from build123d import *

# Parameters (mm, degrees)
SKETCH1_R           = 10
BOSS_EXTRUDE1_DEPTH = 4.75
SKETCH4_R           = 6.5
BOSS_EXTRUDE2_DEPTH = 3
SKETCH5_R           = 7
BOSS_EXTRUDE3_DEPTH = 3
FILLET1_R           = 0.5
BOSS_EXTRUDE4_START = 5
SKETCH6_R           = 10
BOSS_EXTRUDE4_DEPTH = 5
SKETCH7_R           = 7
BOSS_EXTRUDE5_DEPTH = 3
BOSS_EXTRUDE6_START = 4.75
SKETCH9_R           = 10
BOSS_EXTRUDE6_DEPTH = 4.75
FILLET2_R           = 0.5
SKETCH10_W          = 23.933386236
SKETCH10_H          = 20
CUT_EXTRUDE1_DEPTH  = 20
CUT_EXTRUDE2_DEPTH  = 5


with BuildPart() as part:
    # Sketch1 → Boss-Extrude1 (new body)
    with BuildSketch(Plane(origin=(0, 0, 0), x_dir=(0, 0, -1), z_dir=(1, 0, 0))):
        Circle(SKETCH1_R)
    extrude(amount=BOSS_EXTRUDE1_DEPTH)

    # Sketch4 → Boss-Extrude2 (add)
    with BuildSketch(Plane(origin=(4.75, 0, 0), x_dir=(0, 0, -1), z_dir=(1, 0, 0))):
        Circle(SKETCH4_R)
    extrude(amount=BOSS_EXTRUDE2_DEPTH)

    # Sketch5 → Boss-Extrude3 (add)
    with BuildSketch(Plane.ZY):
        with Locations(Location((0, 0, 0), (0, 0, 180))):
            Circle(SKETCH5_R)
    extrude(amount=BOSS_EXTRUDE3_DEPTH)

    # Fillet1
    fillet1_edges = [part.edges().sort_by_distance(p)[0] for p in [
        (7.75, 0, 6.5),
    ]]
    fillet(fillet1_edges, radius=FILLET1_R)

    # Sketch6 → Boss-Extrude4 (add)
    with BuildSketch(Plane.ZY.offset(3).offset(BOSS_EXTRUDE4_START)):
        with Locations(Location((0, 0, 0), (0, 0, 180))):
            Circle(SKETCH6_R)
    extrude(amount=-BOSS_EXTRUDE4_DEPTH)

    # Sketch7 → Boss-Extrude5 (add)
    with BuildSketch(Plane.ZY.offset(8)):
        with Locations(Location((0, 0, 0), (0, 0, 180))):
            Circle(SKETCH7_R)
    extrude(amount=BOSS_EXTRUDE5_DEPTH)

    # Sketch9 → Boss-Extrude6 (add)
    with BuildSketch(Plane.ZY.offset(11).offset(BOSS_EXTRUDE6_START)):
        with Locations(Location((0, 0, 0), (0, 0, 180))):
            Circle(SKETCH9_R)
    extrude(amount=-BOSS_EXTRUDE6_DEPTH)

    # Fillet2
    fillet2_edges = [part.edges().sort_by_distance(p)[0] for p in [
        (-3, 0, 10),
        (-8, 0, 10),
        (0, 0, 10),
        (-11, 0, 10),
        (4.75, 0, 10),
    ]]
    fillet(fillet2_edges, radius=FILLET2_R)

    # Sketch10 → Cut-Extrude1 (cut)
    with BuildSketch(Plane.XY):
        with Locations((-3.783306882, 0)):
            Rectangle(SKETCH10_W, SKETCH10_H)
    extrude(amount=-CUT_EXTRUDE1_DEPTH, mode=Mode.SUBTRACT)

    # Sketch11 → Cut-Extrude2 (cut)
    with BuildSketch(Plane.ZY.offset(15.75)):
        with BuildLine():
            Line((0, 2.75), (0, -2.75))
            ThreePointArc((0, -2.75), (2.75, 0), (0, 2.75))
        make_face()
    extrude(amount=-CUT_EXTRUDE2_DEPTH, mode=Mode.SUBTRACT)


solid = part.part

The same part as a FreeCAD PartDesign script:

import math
import FreeCAD as App
import Part
import Sketcher

V = App.Vector
Q = App.Units.Quantity


def edges_at(feature, points):
    """Names of the edges that pass closest to the given points."""
    edges = feature.Shape.Edges
    near = lambda p: min(range(len(edges)), key=lambda i: edges[i].distToShape(Part.Vertex(*p))[0])
    return sorted({f"Edge{near(p) + 1}" for p in points})


def add_polygon(sketch, points):
    """Adds a closed chain of lines whose ends are joined by coincident constraints."""
    first, n = sketch.GeometryCount, len(points)
    for a, b in zip(points, points[1:] + points[:1]):
        sketch.addGeometry(Part.LineSegment(App.Vector(*a, 0), App.Vector(*b, 0)), False)
    for i in range(n):
        sketch.addConstraint(Sketcher.Constraint("Coincident", first + i, 2, first + (i + 1) % n, 1))

doc = App.newDocument("Part")
params = doc.addObject("Spreadsheet::Sheet", "Params")
for row, (alias, value) in enumerate([
    ("sketch1_diameter", "20 mm"),
    ("pad1_length", "4.75 mm"),
    ("sketch2_diameter", "13 mm"),
    ("pad2_length", "3 mm"),
    ("sketch3_diameter", "14 mm"),
    ("pad3_length", "3 mm"),
    ("fillet_radius", "0.5 mm"),
    ("sketch4_diameter", "20 mm"),
    ("pad4_length", "5 mm"),
    ("sketch5_diameter", "14 mm"),
    ("pad5_length", "3 mm"),
    ("sketch6_diameter", "20 mm"),
    ("pad6_length", "4.75 mm"),
    ("fillet2_radius", "0.5 mm"),
    ("sketch7_height", "20 mm"),
    ("pocket1_length", "20 mm"),
    ("sketch8_radius", "2.75 mm"),
    ("pocket2_length", "5 mm"),
], start=1):
    params.set(f"A{row}", alias)
    params.set(f"B{row}", "=" + value)
    params.setAlias(f"B{row}", alias)

body = doc.addObject("PartDesign::Body", "Body")

# Sketch on YZ plane
sketch1 = body.newObject("Sketcher::SketchObject", "Sketch")
sketch1.AttachmentSupport = (doc.getObject("YZ_Plane"), [""])
sketch1.MapMode = "FlatFace"
sketch1.addGeometry(Part.Circle(V(0, 0, 0), V(0, 0, 1), 10), False)
sketch1.addConstraint(Sketcher.Constraint("Coincident", 0, 3, -1, 1))
sketch1.addConstraint(Sketcher.Constraint("Diameter", 0, Q("20 mm")))
sketch1.setExpression("Constraints[1]", "Params.sketch1_diameter")
pad1 = body.newObject("PartDesign::Pad", "Pad")
pad1.Profile = sketch1
pad1.setExpression("Length", "Params.pad1_length")

# Sketch on YZ plane
sketch2 = body.newObject("Sketcher::SketchObject", "Sketch001")
sketch2.AttachmentSupport = (doc.getObject("YZ_Plane"), [""])
sketch2.MapMode = "FlatFace"
sketch2.AttachmentOffset = App.Placement(V(0, 0, 4.75), App.Rotation())
sketch2.addGeometry(Part.Circle(V(0, 0, 0), V(0, 0, 1), 6), False)
sketch2.addConstraint(Sketcher.Constraint("Coincident", 0, 3, -1, 1))
sketch2.addConstraint(Sketcher.Constraint("Diameter", 0, Q("13 mm")))
sketch2.setExpression("Constraints[1]", "Params.sketch2_diameter")
pad2 = body.newObject("PartDesign::Pad", "Pad001")
pad2.Profile = sketch2
pad2.setExpression("Length", "Params.pad2_length")

# Sketch on YZ plane
sketch3 = body.newObject("Sketcher::SketchObject", "Sketch002")
sketch3.AttachmentSupport = (doc.getObject("YZ_Plane"), [""])
sketch3.MapMode = "FlatFace"
sketch3.addGeometry(Part.Circle(V(0, 0, 0), V(0, 0, 1), 7), False)
sketch3.addConstraint(Sketcher.Constraint("Coincident", 0, 3, -1, 1))
sketch3.addConstraint(Sketcher.Constraint("Diameter", 0, Q("14 mm")))
sketch3.setExpression("Constraints[1]", "Params.sketch3_diameter")
pad3 = body.newObject("PartDesign::Pad", "Pad002")
pad3.Profile = sketch3
pad3.setExpression("Length", "Params.pad3_length")
pad3.Reversed = True
doc.recompute()

fillet = body.newObject("PartDesign::Fillet", "Fillet")
fillet.Base = (pad3, edges_at(pad3, [(7.75, 0, 6.5)]))
fillet.setExpression("Radius", "Params.fillet_radius")

# Sketch on YZ plane
sketch4 = body.newObject("Sketcher::SketchObject", "Sketch003")
sketch4.AttachmentSupport = (doc.getObject("YZ_Plane"), [""])
sketch4.MapMode = "FlatFace"
sketch4.AttachmentOffset = App.Placement(V(0, 0, -8), App.Rotation())
sketch4.addGeometry(Part.Circle(V(0, 0, 0), V(0, 0, 1), 10), False)
sketch4.addConstraint(Sketcher.Constraint("Coincident", 0, 3, -1, 1))
sketch4.addConstraint(Sketcher.Constraint("Diameter", 0, Q("20 mm")))
sketch4.setExpression("Constraints[1]", "Params.sketch4_diameter")
pad4 = body.newObject("PartDesign::Pad", "Pad003")
pad4.Profile = sketch4
pad4.setExpression("Length", "Params.pad4_length")

# Sketch on YZ plane
sketch5 = body.newObject("Sketcher::SketchObject", "Sketch004")
sketch5.AttachmentSupport = (doc.getObject("YZ_Plane"), [""])
sketch5.MapMode = "FlatFace"
sketch5.AttachmentOffset = App.Placement(V(0, 0, -8), App.Rotation())
sketch5.addGeometry(Part.Circle(V(0, 0, 0), V(0, 0, 1), 7), False)
sketch5.addConstraint(Sketcher.Constraint("Coincident", 0, 3, -1, 1))
sketch5.addConstraint(Sketcher.Constraint("Diameter", 0, Q("14 mm")))
sketch5.setExpression("Constraints[1]", "Params.sketch5_diameter")
pad5 = body.newObject("PartDesign::Pad", "Pad004")
pad5.Profile = sketch5
pad5.setExpression("Length", "Params.pad5_length")
pad5.Reversed = True

# Sketch on YZ plane
sketch6 = body.newObject("Sketcher::SketchObject", "Sketch005")
sketch6.AttachmentSupport = (doc.getObject("YZ_Plane"), [""])
sketch6.MapMode = "FlatFace"
sketch6.AttachmentOffset = App.Placement(V(0, 0, -15.75), App.Rotation())
sketch6.addGeometry(Part.Circle(V(0, 0, 0), V(0, 0, 1), 10), False)
sketch6.addConstraint(Sketcher.Constraint("Coincident", 0, 3, -1, 1))
sketch6.addConstraint(Sketcher.Constraint("Diameter", 0, Q("20 mm")))
sketch6.setExpression("Constraints[1]", "Params.sketch6_diameter")
pad6 = body.newObject("PartDesign::Pad", "Pad005")
pad6.Profile = sketch6
pad6.setExpression("Length", "Params.pad6_length")
doc.recompute()

fillet2 = body.newObject("PartDesign::Fillet", "Fillet001")
fillet2.Base = (pad6, edges_at(pad6, [
    (-3, 0, 10),
    (-8, 0, 10),
    (0, 0, 10),
    (-11, 0, 10),
    (4.75, 0, 10),
]))
fillet2.setExpression("Radius", "Params.fillet2_radius")

# Sketch on XY plane
sketch7 = body.newObject("Sketcher::SketchObject", "Sketch006")
sketch7.AttachmentSupport = (doc.getObject("XY_Plane"), [""])
sketch7.MapMode = "FlatFace"
add_polygon(sketch7, [(-16, 10), (-16, -10), (8, -10), (8, 10)])  # lines 0-3
sketch7.addConstraint(Sketcher.Constraint("Vertical", 0))
sketch7.addConstraint(Sketcher.Constraint("Horizontal", 1))
sketch7.addConstraint(Sketcher.Constraint("Vertical", 2))
sketch7.addConstraint(Sketcher.Constraint("Horizontal", 3))
sketch7.addConstraint(Sketcher.Constraint("DistanceY", 0, 2, 0, 1, Q("20 mm")))
sketch7.addConstraint(Sketcher.Constraint("DistanceY", 0, 2, -1, 1, Q("10 mm")))
sketch7.addConstraint(Sketcher.Constraint("DistanceX", 0, 2, -1, 1, Q("15.75 mm")))
sketch7.addConstraint(Sketcher.Constraint("DistanceX", 1, 1, 1, 2, Q("23.933386 mm")))
sketch7.setExpression("Constraints[8]", "Params.sketch7_height")
pocket1 = body.newObject("PartDesign::Pocket", "Pocket")
pocket1.Profile = sketch7
pocket1.setExpression("Length", "Params.pocket1_length")

# Sketch on YZ plane
sketch8 = body.newObject("Sketcher::SketchObject", "Sketch007")
sketch8.AttachmentSupport = (doc.getObject("YZ_Plane"), [""])
sketch8.MapMode = "FlatFace"
sketch8.AttachmentOffset = App.Placement(V(0, 0, -15.75), App.Rotation())
sketch8.addGeometry(Part.LineSegment(V(2.8, 0, 0), V(-2.8, 0, 0)), False)
sketch8.addGeometry(Part.ArcOfCircle(Part.Circle(V(0, 0, 0), V(0, 0, 1), 2.8), math.radians(0), math.radians(180)), False)
sketch8.addConstraint(Sketcher.Constraint("Coincident", 0, 1, 1, 1))
sketch8.addConstraint(Sketcher.Constraint("Coincident", 1, 2, 0, 2))
sketch8.addConstraint(Sketcher.Constraint("Horizontal", 0))
sketch8.addConstraint(Sketcher.Constraint("Coincident", 1, 3, -1, 1))
sketch8.addConstraint(Sketcher.Constraint("PointOnObject", 0, 1, -1))
sketch8.addConstraint(Sketcher.Constraint("Radius", 1, Q("2.75 mm")))
sketch8.setExpression("Constraints[5]", "Params.sketch8_radius")
pocket2 = body.newObject("PartDesign::Pocket", "Pocket001")
pocket2.Profile = sketch8
pocket2.setExpression("Length", "Params.pocket2_length")
pocket2.Reversed = True

doc.recompute()
